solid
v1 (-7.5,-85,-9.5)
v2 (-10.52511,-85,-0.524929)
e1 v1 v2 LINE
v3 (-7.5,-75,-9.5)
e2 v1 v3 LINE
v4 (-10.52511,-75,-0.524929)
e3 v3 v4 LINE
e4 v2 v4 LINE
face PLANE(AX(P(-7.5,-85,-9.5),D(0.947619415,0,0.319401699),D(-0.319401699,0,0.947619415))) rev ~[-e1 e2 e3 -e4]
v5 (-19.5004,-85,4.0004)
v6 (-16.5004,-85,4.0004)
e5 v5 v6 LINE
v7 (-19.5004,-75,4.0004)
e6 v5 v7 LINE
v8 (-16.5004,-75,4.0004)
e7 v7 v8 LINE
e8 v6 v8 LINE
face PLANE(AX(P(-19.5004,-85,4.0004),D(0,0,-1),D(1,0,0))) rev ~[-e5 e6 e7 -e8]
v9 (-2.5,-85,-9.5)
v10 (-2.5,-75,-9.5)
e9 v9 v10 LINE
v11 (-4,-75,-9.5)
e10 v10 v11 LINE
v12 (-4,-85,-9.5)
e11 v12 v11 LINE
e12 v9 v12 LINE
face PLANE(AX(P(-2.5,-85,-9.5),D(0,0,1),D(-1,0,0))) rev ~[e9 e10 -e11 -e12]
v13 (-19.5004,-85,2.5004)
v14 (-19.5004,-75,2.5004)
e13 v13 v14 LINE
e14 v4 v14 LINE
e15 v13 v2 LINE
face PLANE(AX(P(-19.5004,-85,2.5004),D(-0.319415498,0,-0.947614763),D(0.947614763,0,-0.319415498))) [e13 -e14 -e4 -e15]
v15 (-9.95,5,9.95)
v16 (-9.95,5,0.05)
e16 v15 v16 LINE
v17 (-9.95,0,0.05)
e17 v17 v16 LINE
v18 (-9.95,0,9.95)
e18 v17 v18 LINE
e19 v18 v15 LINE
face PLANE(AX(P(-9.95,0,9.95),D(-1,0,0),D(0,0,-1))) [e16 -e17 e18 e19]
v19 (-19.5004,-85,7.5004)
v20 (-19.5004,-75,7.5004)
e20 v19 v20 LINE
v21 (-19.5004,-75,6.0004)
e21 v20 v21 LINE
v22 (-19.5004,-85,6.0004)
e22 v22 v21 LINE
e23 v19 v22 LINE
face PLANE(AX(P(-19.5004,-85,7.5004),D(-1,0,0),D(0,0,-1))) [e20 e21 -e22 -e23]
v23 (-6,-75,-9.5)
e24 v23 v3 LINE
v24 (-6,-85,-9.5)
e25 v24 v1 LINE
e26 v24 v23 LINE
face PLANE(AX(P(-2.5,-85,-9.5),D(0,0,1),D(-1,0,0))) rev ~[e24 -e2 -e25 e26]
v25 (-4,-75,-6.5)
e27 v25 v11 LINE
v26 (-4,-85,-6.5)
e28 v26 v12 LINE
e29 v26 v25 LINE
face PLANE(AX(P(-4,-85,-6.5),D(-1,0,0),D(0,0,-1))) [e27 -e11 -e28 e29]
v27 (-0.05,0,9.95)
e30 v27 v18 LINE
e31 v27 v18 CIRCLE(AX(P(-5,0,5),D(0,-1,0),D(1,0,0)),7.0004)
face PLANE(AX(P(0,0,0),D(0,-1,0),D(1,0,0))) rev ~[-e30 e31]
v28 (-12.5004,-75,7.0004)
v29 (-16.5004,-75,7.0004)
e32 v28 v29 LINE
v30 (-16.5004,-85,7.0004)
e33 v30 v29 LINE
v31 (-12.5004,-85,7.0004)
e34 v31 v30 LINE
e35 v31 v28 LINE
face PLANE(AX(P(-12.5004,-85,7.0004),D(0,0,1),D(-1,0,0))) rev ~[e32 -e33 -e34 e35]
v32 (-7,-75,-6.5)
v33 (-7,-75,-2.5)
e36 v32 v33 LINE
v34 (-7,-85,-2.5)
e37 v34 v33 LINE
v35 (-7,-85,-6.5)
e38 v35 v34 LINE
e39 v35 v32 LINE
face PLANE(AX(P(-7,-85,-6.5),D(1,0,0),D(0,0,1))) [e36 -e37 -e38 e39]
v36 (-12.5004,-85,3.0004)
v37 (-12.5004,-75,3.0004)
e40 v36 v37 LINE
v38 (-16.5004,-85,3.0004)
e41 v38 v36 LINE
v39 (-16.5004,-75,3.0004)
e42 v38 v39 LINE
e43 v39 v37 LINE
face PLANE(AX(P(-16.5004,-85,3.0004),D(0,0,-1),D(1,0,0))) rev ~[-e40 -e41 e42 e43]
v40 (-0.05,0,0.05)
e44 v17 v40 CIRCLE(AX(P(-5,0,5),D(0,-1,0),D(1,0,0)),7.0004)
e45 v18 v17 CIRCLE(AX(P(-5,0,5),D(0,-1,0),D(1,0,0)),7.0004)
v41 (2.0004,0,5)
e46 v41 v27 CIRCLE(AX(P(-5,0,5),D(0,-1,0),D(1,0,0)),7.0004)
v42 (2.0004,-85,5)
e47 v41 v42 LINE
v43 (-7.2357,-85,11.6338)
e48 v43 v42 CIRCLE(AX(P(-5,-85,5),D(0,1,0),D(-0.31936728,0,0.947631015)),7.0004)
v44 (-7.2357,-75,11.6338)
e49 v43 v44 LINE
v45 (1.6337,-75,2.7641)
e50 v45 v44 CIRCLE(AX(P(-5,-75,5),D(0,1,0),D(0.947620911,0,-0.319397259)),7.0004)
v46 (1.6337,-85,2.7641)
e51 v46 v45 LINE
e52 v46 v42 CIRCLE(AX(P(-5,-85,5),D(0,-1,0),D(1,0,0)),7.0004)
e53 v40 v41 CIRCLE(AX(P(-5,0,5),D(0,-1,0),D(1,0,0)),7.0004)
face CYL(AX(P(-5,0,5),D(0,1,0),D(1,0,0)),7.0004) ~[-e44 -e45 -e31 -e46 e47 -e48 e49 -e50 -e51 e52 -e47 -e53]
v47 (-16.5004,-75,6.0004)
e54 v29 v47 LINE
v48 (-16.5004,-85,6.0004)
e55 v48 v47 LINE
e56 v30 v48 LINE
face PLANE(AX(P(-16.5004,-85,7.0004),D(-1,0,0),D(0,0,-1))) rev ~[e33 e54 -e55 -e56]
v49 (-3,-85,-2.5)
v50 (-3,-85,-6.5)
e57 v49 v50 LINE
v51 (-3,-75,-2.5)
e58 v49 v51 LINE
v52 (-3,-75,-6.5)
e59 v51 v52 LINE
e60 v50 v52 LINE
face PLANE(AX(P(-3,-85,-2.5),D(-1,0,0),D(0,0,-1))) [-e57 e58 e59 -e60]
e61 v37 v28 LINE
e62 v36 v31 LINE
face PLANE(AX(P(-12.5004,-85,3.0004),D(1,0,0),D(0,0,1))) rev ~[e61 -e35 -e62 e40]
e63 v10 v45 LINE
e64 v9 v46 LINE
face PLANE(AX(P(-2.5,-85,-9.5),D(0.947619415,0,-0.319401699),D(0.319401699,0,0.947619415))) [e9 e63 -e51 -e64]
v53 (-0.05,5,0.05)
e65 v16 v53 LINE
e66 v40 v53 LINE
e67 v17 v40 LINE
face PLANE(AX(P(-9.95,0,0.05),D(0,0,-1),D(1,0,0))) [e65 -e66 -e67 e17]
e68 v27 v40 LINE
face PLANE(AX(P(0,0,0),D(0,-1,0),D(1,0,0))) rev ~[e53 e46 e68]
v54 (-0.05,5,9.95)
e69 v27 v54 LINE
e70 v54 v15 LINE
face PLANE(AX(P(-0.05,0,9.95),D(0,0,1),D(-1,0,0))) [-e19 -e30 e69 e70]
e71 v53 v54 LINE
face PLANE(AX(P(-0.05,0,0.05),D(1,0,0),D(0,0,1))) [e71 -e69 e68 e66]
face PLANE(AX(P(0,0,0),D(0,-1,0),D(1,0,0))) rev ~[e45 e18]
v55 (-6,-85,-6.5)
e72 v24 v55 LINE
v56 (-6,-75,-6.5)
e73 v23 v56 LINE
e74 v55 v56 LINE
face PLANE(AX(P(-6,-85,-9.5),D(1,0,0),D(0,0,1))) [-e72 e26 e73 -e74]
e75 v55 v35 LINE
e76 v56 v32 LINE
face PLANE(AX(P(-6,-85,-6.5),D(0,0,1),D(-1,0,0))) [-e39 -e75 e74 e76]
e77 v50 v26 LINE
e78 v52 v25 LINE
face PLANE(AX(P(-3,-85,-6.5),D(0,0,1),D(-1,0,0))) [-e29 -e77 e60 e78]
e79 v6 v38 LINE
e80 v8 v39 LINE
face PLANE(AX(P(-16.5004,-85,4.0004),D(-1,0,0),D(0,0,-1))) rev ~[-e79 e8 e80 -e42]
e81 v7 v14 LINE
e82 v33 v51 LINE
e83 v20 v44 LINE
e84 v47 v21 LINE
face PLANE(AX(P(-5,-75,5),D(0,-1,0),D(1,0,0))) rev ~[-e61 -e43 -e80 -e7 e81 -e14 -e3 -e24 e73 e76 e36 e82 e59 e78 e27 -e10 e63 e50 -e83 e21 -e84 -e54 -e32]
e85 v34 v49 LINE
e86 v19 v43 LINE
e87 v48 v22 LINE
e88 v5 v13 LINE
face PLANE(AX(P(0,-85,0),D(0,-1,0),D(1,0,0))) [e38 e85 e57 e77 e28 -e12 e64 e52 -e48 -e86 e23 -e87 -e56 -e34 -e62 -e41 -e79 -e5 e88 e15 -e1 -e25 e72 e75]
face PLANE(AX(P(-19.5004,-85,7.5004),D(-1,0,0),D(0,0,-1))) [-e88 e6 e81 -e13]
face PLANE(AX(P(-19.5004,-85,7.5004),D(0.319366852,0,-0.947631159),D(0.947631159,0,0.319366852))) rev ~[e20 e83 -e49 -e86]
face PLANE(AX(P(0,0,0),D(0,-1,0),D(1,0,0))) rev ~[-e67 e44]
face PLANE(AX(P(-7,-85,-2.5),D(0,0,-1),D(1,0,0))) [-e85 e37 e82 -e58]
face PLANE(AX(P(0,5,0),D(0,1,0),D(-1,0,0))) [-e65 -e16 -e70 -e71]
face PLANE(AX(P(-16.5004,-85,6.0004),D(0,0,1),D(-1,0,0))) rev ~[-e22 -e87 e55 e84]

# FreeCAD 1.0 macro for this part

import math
import FreeCAD as App
import Part
import Sketcher

V = App.Vector


def add_polygon(sketch, points):
    """Adds a closed chain of lines whose ends are joined by coincident constraints."""
    first, n = sketch.GeometryCount, len(points)
    for a, b in zip(points, points[1:] + points[:1]):
        sketch.addGeometry(Part.LineSegment(App.Vector(*a, 0), App.Vector(*b, 0)), False)
    for i in range(n):
        sketch.addConstraint(Sketcher.Constraint("Coincident", first + i, 2, first + (i + 1) % n, 1))

doc = App.newDocument("Part")
body = doc.addObject("PartDesign::Body", "Body")

# Sketch on XZ plane
sketch1 = body.newObject("Sketcher::SketchObject", "Sketch")
sketch1.AttachmentSupport = (doc.getObject("XZ_Plane"), [""])
sketch1.MapMode = "FlatFace"
add_polygon(sketch1, [(-0.05, 0.05), (-9.95, 0.05), (-9.95, 9.95), (-0.05, 9.95)])  # lines 0-3
sketch1.addConstraint([
    Sketcher.Constraint("Horizontal", 0),
    Sketcher.Constraint("Vertical", 1),
    Sketcher.Constraint("Horizontal", 2),
    Sketcher.Constraint("Vertical", 3),
    Sketcher.Constraint("Equal", 2, 1),
    Sketcher.Constraint("DistanceY", -1, 1, 0, 2, 0.05),
    Sketcher.Constraint("DistanceX", 2, 2, -1, 1, 0.05),
    Sketcher.Constraint("DistanceX", 0, 2, 0, 1, 9.9),
])
pad1 = body.newObject("PartDesign::Pad", "Pad")
pad1.Profile = sketch1
pad1.Length = 5
pad1.Reversed = True

# Sketch on XZ plane
sketch2 = body.newObject("Sketcher::SketchObject", "Sketch001")
sketch2.AttachmentSupport = (doc.getObject("XZ_Plane"), [""])
sketch2.MapMode = "FlatFace"
sketch2.addGeometry(Part.Circle(V(-5, 5, 0), V(0, 0, 1), 7.0004), False)
sketch2.addConstraint([
    Sketcher.Constraint("DistanceX", 0, 3, -1, 1, 5.0),
    Sketcher.Constraint("DistanceY", -1, 1, 0, 3, 5.0),
    Sketcher.Constraint("Diameter", 0, 14.0008),
])
pad2 = body.newObject("PartDesign::Pad", "Pad001")
pad2.Profile = sketch2
pad2.Length = 85

# Sketch on XZ plane
sketch3 = body.newObject("Sketcher::SketchObject", "Sketch002")
sketch3.AttachmentSupport = (doc.getObject("XZ_Plane"), [""])
sketch3.MapMode = "FlatFace"
sketch3.AttachmentOffset = App.Placement(V(0, 0, 85), App.Rotation())
sketch3.addGeometry([
    Part.LineSegment(V(-7.2357, 11.6338, 0), V(-19.5004, 7.5004, 0)),  # 0
    Part.LineSegment(V(-19.5004, 7.5004, 0), V(-19.5004, 2.5004, 0)),  # 1
    Part.LineSegment(V(-19.5004, 2.5004, 0), V(-10.52511, -0.524929, 0)),  # 2
    Part.LineSegment(V(-10.52511, -0.524929, 0), V(-7.5, -9.5, 0)),  # 3
    Part.LineSegment(V(-7.5, -9.5, 0), V(-2.5, -9.5, 0)),  # 4
    Part.LineSegment(V(-2.5, -9.5, 0), V(1.6337, 2.7641, 0)),  # 5
    Part.ArcOfCircle(Part.Circle(V(-5, 5, 0), V(0, 0, 1), 7.0004), math.radians(108.624665), math.radians(341.373522)),  # 6
], False)
sketch3.addConstraint([
    Sketcher.Constraint("Coincident", 0, 2, 1, 1),
    Sketcher.Constraint("Coincident", 1, 2, 2, 1),
    Sketcher.Constraint("Coincident", 2, 2, 3, 1),
    Sketcher.Constraint("Coincident", 3, 2, 4, 1),
    Sketcher.Constraint("Coincident", 4, 2, 5, 1),
    Sketcher.Constraint("Tangent", 5, 2, 6, 2),
    Sketcher.Constraint("Tangent", 6, 1, 0, 1),
    Sketcher.Constraint("Vertical", 1),
    Sketcher.Constraint("Horizontal", 4),
    Sketcher.Constraint("Perpendicular", 0, 3),
    Sketcher.Constraint("Perpendicular", 2, 5),
    Sketcher.Constraint("Equal", 4, 1),
    Sketcher.Constraint("DistanceX", 4, 1, 4, 2, 5.0),
    Sketcher.Constraint("DistanceX", 6, 3, -1, 1, 5.0),
    Sketcher.Constraint("DistanceY", -1, 1, 6, 3, 5.0),
    Sketcher.Constraint("DistanceX", 4, 2, -1, 1, 2.5),
    Sketcher.Constraint("DistanceY", -1, 1, 1, 2, 2.5004),
    Sketcher.Constraint("DistanceY", 3, 2, -1, 1, 9.5),
    Sketcher.Constraint("Radius", 6, 7.0004),
    Sketcher.Constraint("DistanceX", 2, 2, -1, 1, 10.525),
])
pad3 = body.newObject("PartDesign::Pad", "Pad002")
pad3.Profile = sketch3
pad3.Length = 10
pad3.Reversed = True

# Sketch on XZ plane
sketch4 = body.newObject("Sketcher::SketchObject", "Sketch003")
sketch4.AttachmentSupport = (doc.getObject("XZ_Plane"), [""])
sketch4.MapMode = "FlatFace"
sketch4.AttachmentOffset = App.Placement(V(0, 0, 85), App.Rotation())
add_polygon(sketch4, [(-6, -9.5), (-4, -9.5), (-4, -6.5), (-3, -6.5), (-3, -2.5), (-7, -2.5), (-7, -6.5), (-6, -6.5)])  # lines 0-7
add_polygon(sketch4, [(-16.5004, 6.0004), (-19.5004, 6.0004), (-19.5004, 4.0004), (-16.5004, 4.0004), (-16.5004, 3.0004), (-12.5004, 3.0004), (-12.5004, 7.0004), (-16.5004, 7.0004)])  # lines 8-15
sketch4.addConstraint([
    Sketcher.Constraint("Horizontal", 0),
    Sketcher.Constraint("Vertical", 1),
    Sketcher.Constraint("Horizontal", 2),
    Sketcher.Constraint("Vertical", 3),
    Sketcher.Constraint("Horizontal", 4),
    Sketcher.Constraint("Vertical", 5),
    Sketcher.Constraint("Horizontal", 6),
    Sketcher.Constraint("Vertical", 7),
    Sketcher.Constraint("Horizontal", 8),
    Sketcher.Constraint("Vertical", 9),
    Sketcher.Constraint("Horizontal", 10),
    Sketcher.Constraint("Vertical", 11),
    Sketcher.Constraint("Horizontal", 12),
    Sketcher.Constraint("Vertical", 13),
    Sketcher.Constraint("Horizontal", 14),
    Sketcher.Constraint("Vertical", 15),
    Sketcher.Constraint("Horizontal", 2, 2, 5, 2),
    Sketcher.Constraint("Vertical", 11, 2, 14, 2),
    Sketcher.Constraint("Equal", 2, 6),
    Sketcher.Constraint("Equal", 4, 12),
    Sketcher.Constraint("Equal", 10, 1),
    Sketcher.Constraint("Equal", 14, 3),
    Sketcher.Constraint("Equal", 0, 9),
    Sketcher.Constraint("Equal", 6, 11),
    Sketcher.Constraint("Equal", 5, 13),
    Sketcher.Constraint("DistanceX", 0, 1, 0, 2, 2.0),
    Sketcher.Constraint("DistanceX", 4, 2, 4, 1, 4.0),
    Sketcher.Constraint("DistanceX", 8, 2, 8, 1, 3.0),
    Sketcher.Constraint("DistanceX", 0, 2, -1, 1, 4.0),
    Sketcher.Constraint("DistanceY", -1, 1, 9, 2, 4.0004),
    Sketcher.Constraint("DistanceY", 0, 2, -1, 1, 9.5),
    Sketcher.Constraint("DistanceX", 8, 2, -1, 1, 19.5004),
])
pocket1 = body.newObject("PartDesign::Pocket", "Pocket")
pocket1.Profile = sketch4
pocket1.Length = 85

doc.recompute()
